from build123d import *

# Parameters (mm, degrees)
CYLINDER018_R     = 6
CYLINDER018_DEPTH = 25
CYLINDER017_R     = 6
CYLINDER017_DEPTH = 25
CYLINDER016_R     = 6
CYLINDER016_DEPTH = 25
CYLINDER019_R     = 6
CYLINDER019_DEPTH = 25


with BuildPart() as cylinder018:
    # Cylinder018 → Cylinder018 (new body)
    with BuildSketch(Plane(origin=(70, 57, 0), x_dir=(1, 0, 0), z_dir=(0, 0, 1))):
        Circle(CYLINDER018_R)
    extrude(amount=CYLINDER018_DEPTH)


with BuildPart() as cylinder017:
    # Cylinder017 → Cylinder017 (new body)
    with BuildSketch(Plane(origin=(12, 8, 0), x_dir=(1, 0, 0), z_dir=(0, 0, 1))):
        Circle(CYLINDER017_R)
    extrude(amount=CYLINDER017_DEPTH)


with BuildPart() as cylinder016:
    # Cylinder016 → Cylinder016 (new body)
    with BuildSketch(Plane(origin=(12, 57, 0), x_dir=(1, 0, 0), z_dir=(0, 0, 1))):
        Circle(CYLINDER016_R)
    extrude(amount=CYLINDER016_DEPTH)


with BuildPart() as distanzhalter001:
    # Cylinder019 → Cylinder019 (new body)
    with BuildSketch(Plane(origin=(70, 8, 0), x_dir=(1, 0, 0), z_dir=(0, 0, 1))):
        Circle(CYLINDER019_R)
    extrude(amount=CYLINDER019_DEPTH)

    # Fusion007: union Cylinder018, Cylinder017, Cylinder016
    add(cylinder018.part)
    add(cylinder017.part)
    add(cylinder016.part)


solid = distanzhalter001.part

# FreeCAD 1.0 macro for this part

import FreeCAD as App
import Part
import Sketcher

doc = App.newDocument("Part")
body = doc.addObject("PartDesign::Body", "Body")

sketch1 = body.newObject("Sketcher::SketchObject", "Sketch")
sketch1.AttachmentSupport = (doc.getObject("XY_Plane"), [""])
sketch1.MapMode = "FlatFace"
sketch1.addGeometry(Part.Circle(App.Vector(70, 57, 0), App.Vector(0, 0, 1), 6), False)
sketch1.addConstraint([
    Sketcher.Constraint("Diameter", 0, 12.0),
    Sketcher.Constraint("DistanceX", -1, 1, 0, 3, 70.0),
    Sketcher.Constraint("DistanceY", -1, 1, 0, 3, 57.0),
])
pad1 = body.newObject("PartDesign::Pad", "Pad")
pad1.Profile = sketch1
pad1.Length = 25
body2 = doc.addObject("PartDesign::Body", "Body001")

sketch2 = body2.newObject("Sketcher::SketchObject", "Sketch001")
sketch2.AttachmentSupport = (doc.getObject("XY_Plane001"), [""])
sketch2.MapMode = "FlatFace"
sketch2.addGeometry(Part.Circle(App.Vector(12, 8, 0), App.Vector(0, 0, 1), 6), False)
sketch2.addConstraint([
    Sketcher.Constraint("Diameter", 0, 12.0),
    Sketcher.Constraint("DistanceX", -1, 1, 0, 3, 12.0),
    Sketcher.Constraint("DistanceY", -1, 1, 0, 3, 8.0),
])
pad2 = body2.newObject("PartDesign::Pad", "Pad001")
pad2.Profile = sketch2
pad2.Length = 25
body3 = doc.addObject("PartDesign::Body", "Body002")

sketch3 = body3.newObject("Sketcher::SketchObject", "Sketch002")
sketch3.AttachmentSupport = (doc.getObject("XY_Plane002"), [""])
sketch3.MapMode = "FlatFace"
sketch3.addGeometry(Part.Circle(App.Vector(12, 57, 0), App.Vector(0, 0, 1), 6), False)
sketch3.addConstraint([
    Sketcher.Constraint("Diameter", 0, 12.0),
    Sketcher.Constraint("DistanceX", -1, 1, 0, 3, 12.0),
    Sketcher.Constraint("DistanceY", -1, 1, 0, 3, 57.0),
])
pad3 = body3.newObject("PartDesign::Pad", "Pad002")
pad3.Profile = sketch3
pad3.Length = 25
body4 = doc.addObject("PartDesign::Body", "Body003")
body4.AllowCompound = True

sketch4 = body4.newObject("Sketcher::SketchObject", "Sketch003")
sketch4.AttachmentSupport = (doc.getObject("XY_Plane003"), [""])
sketch4.MapMode = "FlatFace"
sketch4.addGeometry(Part.Circle(App.Vector(70, 8, 0), App.Vector(0, 0, 1), 6), False)
sketch4.addConstraint([
    Sketcher.Constraint("Diameter", 0, 12.0),
    Sketcher.Constraint("DistanceX", -1, 1, 0, 3, 70.0),
    Sketcher.Constraint("DistanceY", -1, 1, 0, 3, 8.0),
])
pad4 = body4.newObject("PartDesign::Pad", "Pad003")
pad4.Profile = sketch4
pad4.Length = 25
doc.recompute()

boolean = body4.newObject("PartDesign::Boolean", "Boolean")
boolean.Type = "Fuse"
boolean.addObjects([body])
doc.recompute()

boolean2 = body4.newObject("PartDesign::Boolean", "Boolean001")
boolean2.Type = "Fuse"
boolean2.addObjects([body2])
doc.recompute()

boolean3 = body4.newObject("PartDesign::Boolean", "Boolean002")
boolean3.Type = "Fuse"
boolean3.addObjects([body3])

doc.recompute()
